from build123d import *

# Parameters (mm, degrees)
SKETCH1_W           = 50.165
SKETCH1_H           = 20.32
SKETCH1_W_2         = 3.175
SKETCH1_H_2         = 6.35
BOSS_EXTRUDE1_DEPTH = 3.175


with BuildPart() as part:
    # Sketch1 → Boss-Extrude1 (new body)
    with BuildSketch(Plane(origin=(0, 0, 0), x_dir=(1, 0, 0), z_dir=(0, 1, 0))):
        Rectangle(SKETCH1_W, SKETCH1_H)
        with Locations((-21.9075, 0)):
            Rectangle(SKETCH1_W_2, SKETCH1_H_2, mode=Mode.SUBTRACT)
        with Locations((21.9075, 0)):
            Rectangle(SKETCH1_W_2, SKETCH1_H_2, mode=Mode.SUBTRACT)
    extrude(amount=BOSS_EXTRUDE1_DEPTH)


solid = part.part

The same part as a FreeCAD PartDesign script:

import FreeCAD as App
import Part
import Sketcher
Q = App.Units.Quantity


def add_polygon(sketch, points):
    """Adds a closed chain of lines whose ends are joined by coincident constraints."""
    first, n = sketch.GeometryCount, len(points)
    for a, b in zip(points, points[1:] + points[:1]):
        sketch.addGeometry(Part.LineSegment(App.Vector(*a, 0), App.Vector(*b, 0)), False)
    for i in range(n):
        sketch.addConstraint(Sketcher.Constraint("Coincident", first + i, 2, first + (i + 1) % n, 1))

doc = App.newDocument("Part")
body = doc.addObject("PartDesign::Body", "Body")

# Sketch on XZ plane
sketch1 = body.newObject("Sketcher::SketchObject", "Sketch")
sketch1.AttachmentSupport = (doc.getObject("XZ_Plane"), [""])
sketch1.MapMode = "FlatFace"
add_polygon(sketch1, [(-25.1, -10.2), (-25.1, 10.2), (25.1, 10.2), (25.1, -10.2)])  # lines 0-3
add_polygon(sketch1, [(-20.3, 3.2), (-23.5, 3.2), (-23.5, -3.2), (-20.3, -3.2)])  # lines 4-7
add_polygon(sketch1, [(23.5, 3.2), (20.3, 3.2), (20.3, -3.2), (23.5, -3.2)])  # lines 8-11
sketch1.addConstraint([
    Sketcher.Constraint("Vertical", 0),
    Sketcher.Constraint("Horizontal", 1),
    Sketcher.Constraint("Vertical", 2),
    Sketcher.Constraint("Horizontal", 3),
    Sketcher.Constraint("Horizontal", 4),
    Sketcher.Constraint("Vertical", 5),
    Sketcher.Constraint("Horizontal", 6),
    Sketcher.Constraint("Vertical", 7),
    Sketcher.Constraint("Horizontal", 8),
    Sketcher.Constraint("Vertical", 9),
    Sketcher.Constraint("Horizontal", 10),
    Sketcher.Constraint("Vertical", 11),
    Sketcher.Constraint("Symmetric", 0, 2, 2, 2, -1, 1),
    Sketcher.Constraint("Symmetric", 6, 2, 8, 2, -1, 1),
    Sketcher.Constraint("Symmetric", 4, 2, 10, 2, -1, 1),
    Sketcher.Constraint("Horizontal", 7, 2, 8, 2),
    Sketcher.Constraint("DistanceY", 0, 1, 0, 2, Q("0.8 in")),
    Sketcher.Constraint("DistanceY", 5, 2, 5, 1, Q("0.25 in")),
    Sketcher.Constraint("DistanceX", 6, 2, -1, 1, Q("0.8 in")),
    Sketcher.Constraint("DistanceX", 1, 1, 1, 2, Q("1.975 in")),
    Sketcher.Constraint("DistanceX", 4, 2, 4, 1, Q("0.125 in")),
])
pad1 = body.newObject("PartDesign::Pad", "Pad")
pad1.Profile = sketch1
pad1.Length = Q("0.125 in")
pad1.Reversed = True

doc.recompute()
